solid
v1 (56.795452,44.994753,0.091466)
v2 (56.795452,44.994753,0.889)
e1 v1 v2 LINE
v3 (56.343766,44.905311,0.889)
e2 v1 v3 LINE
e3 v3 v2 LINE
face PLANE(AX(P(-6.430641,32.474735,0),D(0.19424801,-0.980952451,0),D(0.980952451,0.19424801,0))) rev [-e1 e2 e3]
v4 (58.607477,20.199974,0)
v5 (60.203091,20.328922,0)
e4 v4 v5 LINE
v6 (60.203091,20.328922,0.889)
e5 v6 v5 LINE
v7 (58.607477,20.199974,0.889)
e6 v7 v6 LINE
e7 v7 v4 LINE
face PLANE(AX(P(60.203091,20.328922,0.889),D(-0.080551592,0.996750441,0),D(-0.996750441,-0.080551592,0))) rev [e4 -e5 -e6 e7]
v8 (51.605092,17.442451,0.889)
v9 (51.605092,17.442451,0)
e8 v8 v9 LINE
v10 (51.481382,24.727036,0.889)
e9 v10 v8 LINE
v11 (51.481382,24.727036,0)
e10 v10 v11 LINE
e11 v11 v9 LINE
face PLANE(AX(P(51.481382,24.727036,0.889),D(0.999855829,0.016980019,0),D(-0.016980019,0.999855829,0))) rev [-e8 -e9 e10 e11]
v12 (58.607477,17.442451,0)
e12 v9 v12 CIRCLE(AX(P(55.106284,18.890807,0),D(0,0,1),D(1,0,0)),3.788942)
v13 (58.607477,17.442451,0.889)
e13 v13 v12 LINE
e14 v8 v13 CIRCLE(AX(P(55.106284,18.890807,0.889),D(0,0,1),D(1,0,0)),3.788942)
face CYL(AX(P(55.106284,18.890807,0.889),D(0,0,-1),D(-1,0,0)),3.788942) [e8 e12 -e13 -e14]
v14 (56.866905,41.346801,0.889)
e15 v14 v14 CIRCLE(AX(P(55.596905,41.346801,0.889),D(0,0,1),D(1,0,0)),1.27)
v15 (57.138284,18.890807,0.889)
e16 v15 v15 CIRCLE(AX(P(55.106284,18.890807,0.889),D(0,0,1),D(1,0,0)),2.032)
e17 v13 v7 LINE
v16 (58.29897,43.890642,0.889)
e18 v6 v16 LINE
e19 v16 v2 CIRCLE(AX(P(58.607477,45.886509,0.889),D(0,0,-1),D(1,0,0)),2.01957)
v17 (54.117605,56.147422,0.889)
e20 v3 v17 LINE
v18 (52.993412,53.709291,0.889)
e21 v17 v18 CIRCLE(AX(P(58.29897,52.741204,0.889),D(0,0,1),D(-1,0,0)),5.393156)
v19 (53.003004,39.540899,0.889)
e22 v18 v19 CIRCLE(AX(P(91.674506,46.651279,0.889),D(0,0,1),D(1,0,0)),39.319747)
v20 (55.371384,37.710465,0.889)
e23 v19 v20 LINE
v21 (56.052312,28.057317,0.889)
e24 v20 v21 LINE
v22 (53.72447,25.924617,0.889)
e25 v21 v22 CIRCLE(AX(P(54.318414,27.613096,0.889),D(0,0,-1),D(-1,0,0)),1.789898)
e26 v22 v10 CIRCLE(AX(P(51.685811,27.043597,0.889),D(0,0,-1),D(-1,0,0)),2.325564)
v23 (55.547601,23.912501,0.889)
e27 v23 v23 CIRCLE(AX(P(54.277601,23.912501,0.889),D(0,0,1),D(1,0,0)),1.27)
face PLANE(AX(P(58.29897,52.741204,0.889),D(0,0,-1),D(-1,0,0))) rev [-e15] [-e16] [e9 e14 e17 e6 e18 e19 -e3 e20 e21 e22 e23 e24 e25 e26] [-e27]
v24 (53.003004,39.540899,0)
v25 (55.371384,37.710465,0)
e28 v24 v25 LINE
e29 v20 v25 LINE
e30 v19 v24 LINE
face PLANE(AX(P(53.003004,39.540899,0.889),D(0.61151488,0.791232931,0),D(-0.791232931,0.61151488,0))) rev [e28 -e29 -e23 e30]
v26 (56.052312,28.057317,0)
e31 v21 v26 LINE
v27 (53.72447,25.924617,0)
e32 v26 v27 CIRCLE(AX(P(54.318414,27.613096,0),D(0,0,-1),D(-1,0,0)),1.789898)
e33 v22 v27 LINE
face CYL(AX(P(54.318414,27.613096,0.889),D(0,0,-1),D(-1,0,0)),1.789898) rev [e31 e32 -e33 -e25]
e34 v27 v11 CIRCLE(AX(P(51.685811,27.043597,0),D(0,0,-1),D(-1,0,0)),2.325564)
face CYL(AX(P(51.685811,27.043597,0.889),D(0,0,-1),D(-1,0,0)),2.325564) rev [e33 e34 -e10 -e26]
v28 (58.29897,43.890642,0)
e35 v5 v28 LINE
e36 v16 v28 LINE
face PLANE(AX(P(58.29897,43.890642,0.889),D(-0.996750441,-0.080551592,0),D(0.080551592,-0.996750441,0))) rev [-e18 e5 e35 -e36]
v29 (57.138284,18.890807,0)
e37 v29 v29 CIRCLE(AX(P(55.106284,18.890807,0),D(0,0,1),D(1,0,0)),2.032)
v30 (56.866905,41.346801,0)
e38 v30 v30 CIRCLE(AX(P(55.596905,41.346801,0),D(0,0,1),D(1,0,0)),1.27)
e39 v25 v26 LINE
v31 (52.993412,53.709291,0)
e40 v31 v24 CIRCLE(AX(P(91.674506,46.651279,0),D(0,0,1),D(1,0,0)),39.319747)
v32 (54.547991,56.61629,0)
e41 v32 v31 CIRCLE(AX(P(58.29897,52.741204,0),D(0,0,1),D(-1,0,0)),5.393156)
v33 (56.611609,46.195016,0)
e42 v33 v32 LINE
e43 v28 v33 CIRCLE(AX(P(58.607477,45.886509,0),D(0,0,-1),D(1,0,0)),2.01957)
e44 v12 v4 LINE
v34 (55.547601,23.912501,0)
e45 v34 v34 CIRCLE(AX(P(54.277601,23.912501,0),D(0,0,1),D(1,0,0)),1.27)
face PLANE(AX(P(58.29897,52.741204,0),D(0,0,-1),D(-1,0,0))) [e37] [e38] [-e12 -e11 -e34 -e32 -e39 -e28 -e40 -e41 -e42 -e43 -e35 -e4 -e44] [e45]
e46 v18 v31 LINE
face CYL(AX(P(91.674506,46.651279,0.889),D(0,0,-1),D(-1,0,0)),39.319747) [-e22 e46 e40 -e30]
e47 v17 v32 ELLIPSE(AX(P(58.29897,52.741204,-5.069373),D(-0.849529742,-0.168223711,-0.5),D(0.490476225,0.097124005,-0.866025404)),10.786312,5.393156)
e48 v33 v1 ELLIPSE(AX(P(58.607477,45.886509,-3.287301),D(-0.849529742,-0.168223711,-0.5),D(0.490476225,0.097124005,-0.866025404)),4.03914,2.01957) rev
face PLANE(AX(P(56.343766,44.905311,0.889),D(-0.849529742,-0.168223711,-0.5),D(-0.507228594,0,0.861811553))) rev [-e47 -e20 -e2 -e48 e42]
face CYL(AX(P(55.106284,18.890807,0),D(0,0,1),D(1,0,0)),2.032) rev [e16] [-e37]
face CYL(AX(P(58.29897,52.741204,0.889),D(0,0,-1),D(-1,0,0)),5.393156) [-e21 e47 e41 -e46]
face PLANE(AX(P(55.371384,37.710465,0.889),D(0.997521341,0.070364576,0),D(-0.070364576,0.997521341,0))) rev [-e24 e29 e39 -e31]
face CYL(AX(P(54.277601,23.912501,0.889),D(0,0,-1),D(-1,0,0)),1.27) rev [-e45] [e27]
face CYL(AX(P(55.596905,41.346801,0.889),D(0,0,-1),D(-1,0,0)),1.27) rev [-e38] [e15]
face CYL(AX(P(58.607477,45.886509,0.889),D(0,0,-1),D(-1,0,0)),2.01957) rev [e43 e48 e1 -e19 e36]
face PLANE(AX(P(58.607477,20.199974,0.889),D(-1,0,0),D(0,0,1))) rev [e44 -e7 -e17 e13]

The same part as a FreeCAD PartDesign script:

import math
import FreeCAD as App
import Part
import Sketcher
from FreeCAD import Vector
Q = App.Units.Quantity

doc = App.newDocument("Part")
body = doc.addObject("PartDesign::Body", "Body")

sketch1 = body.newObject("Sketcher::SketchObject", "Sketch")
sketch1.AttachmentSupport = (doc.getObject("XY_Plane"), [""])
sketch1.MapMode = "FlatFace"
sketch1.addGeometry([
    Part.LineSegment(Vector(56.611609, 46.195016, 0), Vector(54.547991, 56.61629, 0)),
    Part.ArcOfCircle(Part.Circle(Vector(58.29897, 52.741204, 0), Vector(0, 0, 1), 5.393156), math.radians(134.067646), math.radians(169.659187)),
    Part.ArcOfCircle(Part.Circle(Vector(91.674506, 46.651279, 0), Vector(0, 0, 1), 39.319747), math.radians(169.659187), math.radians(190.418389)),
    Part.LineSegment(Vector(53.003004, 39.540899, 0), Vector(55.371384, 37.710465, 0)),
    Part.LineSegment(Vector(55.371384, 37.710465, 0), Vector(56.052312, 28.057317, 0)),
    Part.ArcOfCircle(Part.Circle(Vector(54.318414, 27.613096, 0), Vector(0, 0, 1), 1.789898), math.radians(-109.379978), math.radians(14.36997)),
    Part.ArcOfCircle(Part.Circle(Vector(51.685811, 27.043597, 0), Vector(0, 0, 1), 2.325564), math.radians(-95.043097), math.radians(-28.761537)),
    Part.LineSegment(Vector(51.481382, 24.727036, 0), Vector(51.605092, 17.442451, 0)),
    Part.ArcOfCircle(Part.Circle(Vector(55.106284, 18.890807, 0), Vector(0, 0, 1), 3.788942), math.radians(-157.526343), math.radians(-22.473657)),
    Part.LineSegment(Vector(58.607477, 17.442451, 0), Vector(58.607477, 20.199974, 0)),
    Part.LineSegment(Vector(58.607477, 20.199974, 0), Vector(60.203091, 20.328922, 0)),
    Part.LineSegment(Vector(60.203091, 20.328922, 0), Vector(58.29897, 43.890642, 0)),
    Part.ArcOfCircle(Part.Circle(Vector(58.607477, 45.886509, 0), Vector(0, 0, 1), 2.01957), math.radians(171.213165), math.radians(261.213165)),
    Part.Circle(Vector(54.277601, 23.912501, 0), Vector(0, 0, 1), 1.27),
    Part.Circle(Vector(55.596905, 41.346801, 0), Vector(0, 0, 1), 1.27),
], False)
sketch1.addConstraint([
    Sketcher.Constraint("Coincident", 0, 2, 1, 1),
    Sketcher.Constraint("Coincident", 1, 2, 2, 1),
    Sketcher.Constraint("Coincident", 2, 2, 3, 1),
    Sketcher.Constraint("Coincident", 3, 2, 4, 1),
    Sketcher.Constraint("Coincident", 4, 2, 5, 2),
    Sketcher.Constraint("Coincident", 5, 1, 6, 2),
    Sketcher.Constraint("Coincident", 6, 1, 7, 1),
    Sketcher.Constraint("Coincident", 7, 2, 8, 1),
    Sketcher.Constraint("Coincident", 8, 2, 9, 1),
    Sketcher.Constraint("Coincident", 9, 2, 10, 1),
    Sketcher.Constraint("Coincident", 10, 2, 11, 1),
    Sketcher.Constraint("Coincident", 11, 2, 12, 2),
    Sketcher.Constraint("Coincident", 12, 1, 0, 1),
    Sketcher.Constraint("Vertical", 9),
    Sketcher.Constraint("Diameter", 13, Q("0.1 in")),
    Sketcher.Constraint("Diameter", 14, Q("0.1 in")),
    Sketcher.Constraint("Radius", 12, Q("2.01957 mm")),
    Sketcher.Constraint("Radius", 1, Q("5.393156 mm")),
    Sketcher.Constraint("Radius", 2, Q("39.319747 mm")),
    Sketcher.Constraint("Radius", 5, Q("1.789898 mm")),
    Sketcher.Constraint("Radius", 6, Q("2.325564 mm")),
    Sketcher.Constraint("Radius", 8, Q("3.788942 mm")),
    Sketcher.Constraint("DistanceX", -1, 1, 13, 3, Q("54.277601 mm")),
    Sketcher.Constraint("DistanceY", -1, 1, 13, 3, Q("23.912501 mm")),
    Sketcher.Constraint("DistanceY", -1, 1, 14, 3, Q("41.346801 mm")),
    Sketcher.Constraint("DistanceY", -1, 1, 2, 2, Q("39.540899 mm")),
    Sketcher.Constraint("DistanceY", 6, 3, 5, 3, Q("0.569499 mm")),
    Sketcher.Constraint("DistanceY", 8, 3, 12, 3, Q("26.995702 mm")),
    Sketcher.Constraint("DistanceY", 1, 2, 0, 2, Q("2.906998 mm")),
    Sketcher.Constraint("DistanceX", 1, 2, 5, 3, Q("1.325002 mm")),
    Sketcher.Constraint("DistanceX", 2, 2, 14, 3, Q("2.593901 mm")),
    Sketcher.Constraint("DistanceY", 6, 3, 2, 2, Q("12.497302 mm")),
    Sketcher.Constraint("DistanceX", 6, 3, 4, 2, Q("4.366501 mm")),
    Sketcher.Constraint("DistanceY", 5, 1, 4, 2, Q("2.1327 mm")),
    Sketcher.Constraint("Distance", 3, Q("2.993278 mm")),
    Sketcher.Constraint("DistanceY", 9, 1, 9, 2, Q("2.757523 mm")),
    Sketcher.Constraint("DistanceX", -1, 1, 1, 3, Q("58.29897 mm")),
    Sketcher.Constraint("DistanceY", -1, 1, 2, 3, Q("46.651279 mm")),
    Sketcher.Constraint("DistanceX", -1, 1, 6, 3, Q("51.685811 mm")),
    Sketcher.Constraint("DistanceY", -1, 1, 12, 3, Q("45.886509 mm")),
    Sketcher.Constraint("DistanceY", -1, 1, 0, 2, Q("56.61629 mm")),
    Sketcher.Constraint("DistanceX", -1, 1, 6, 1, Q("51.481382 mm")),
    Sketcher.Constraint("DistanceX", -1, 1, 7, 2, Q("51.605092 mm")),
    Sketcher.Constraint("DistanceY", -1, 1, 7, 2, Q("17.442451 mm")),
    Sketcher.Constraint("DistanceY", -1, 1, 8, 2, Q("17.442451 mm")),
    Sketcher.Constraint("DistanceX", -1, 1, 10, 2, Q("60.203091 mm")),
    Sketcher.Constraint("DistanceX", -1, 1, 11, 2, Q("58.29897 mm")),
    Sketcher.Constraint("DistanceY", -1, 1, 11, 2, Q("43.890642 mm")),
    Sketcher.Constraint("DistanceX", -1, 1, 12, 1, Q("56.611609 mm")),
    Sketcher.Constraint("DistanceX", 2, 2, 3, 2, Q("2.368381 mm")),
    Sketcher.Constraint("DistanceY", 9, 2, 10, 2, Q("0.128948 mm")),
])
pad1 = body.newObject("PartDesign::Pad", "Pad")
pad1.Profile = sketch1
pad1.Length = Q("0.035 in")

sketch2 = body.newObject("Sketcher::SketchObject", "Sketch001")
sketch2.AttachmentSupport = (doc.getObject("XY_Plane"), [""])
sketch2.MapMode = "FlatFace"
sketch2.AttachmentOffset = App.Placement(Vector(0, 0, 0.035 * 25.4), App.Rotation())
sketch2.addGeometry(Part.Circle(Vector(55.1, 18.9, 0), Vector(0, 0, 1), 2), False)
sketch2.addConstraint([
    Sketcher.Constraint("Diameter", 0, Q("0.16 in")),
    Sketcher.Constraint("DistanceX", -1, 1, 0, 3, Q("55.106284 mm")),
    Sketcher.Constraint("DistanceY", -1, 1, 0, 3, Q("18.890807 mm")),
])
pocket1 = body.newObject("PartDesign::Pocket", "Pocket")
pocket1.Profile = sketch2
pocket1.Type = "ThroughAll"

sketch3 = body.newObject("Sketcher::SketchObject", "Sketch002")
sketch3.Placement = App.Placement(Vector(-8.89759, 44.932831, 0), App.Rotation(Vector(0.980952451, 0.19424801, 0), Vector(0, 0, -1.000000001), Vector(-0.19424801, 0.980952451, 0), "ZXY"))
sketch3.addGeometry([
    Part.LineSegment(Vector(64.5, -0.9, 0), Vector(64.5, 0, 0)),
    Part.LineSegment(Vector(64.5, 0, 0), Vector(64, -0.9, 0)),
    Part.LineSegment(Vector(64, -0.9, 0), Vector(64.5, -0.9, 0)),
], False)
sketch3.addConstraint([
    Sketcher.Constraint("Coincident", 0, 2, 1, 1),
    Sketcher.Constraint("Coincident", 1, 2, 2, 1),
    Sketcher.Constraint("Coincident", 2, 2, 0, 1),
    Sketcher.Constraint("Vertical", 0),
    Sketcher.Constraint("Horizontal", 2),
    Sketcher.Constraint("PointOnObject", 0, 2, -1),
    Sketcher.Constraint("Angle", 1, Q("-120 deg")),
    Sketcher.Constraint("DistanceY", 0, 1, 0, 2, Q("0.035 in")),
    Sketcher.Constraint("DistanceX", -1, 1, 0, 2, Q("64.506587 mm")),
])
pocket2 = body.newObject("PartDesign::Pocket", "Pocket001")
pocket2.Profile = sketch3
pocket2.Length = Q("0.5 in")

doc.recompute()
